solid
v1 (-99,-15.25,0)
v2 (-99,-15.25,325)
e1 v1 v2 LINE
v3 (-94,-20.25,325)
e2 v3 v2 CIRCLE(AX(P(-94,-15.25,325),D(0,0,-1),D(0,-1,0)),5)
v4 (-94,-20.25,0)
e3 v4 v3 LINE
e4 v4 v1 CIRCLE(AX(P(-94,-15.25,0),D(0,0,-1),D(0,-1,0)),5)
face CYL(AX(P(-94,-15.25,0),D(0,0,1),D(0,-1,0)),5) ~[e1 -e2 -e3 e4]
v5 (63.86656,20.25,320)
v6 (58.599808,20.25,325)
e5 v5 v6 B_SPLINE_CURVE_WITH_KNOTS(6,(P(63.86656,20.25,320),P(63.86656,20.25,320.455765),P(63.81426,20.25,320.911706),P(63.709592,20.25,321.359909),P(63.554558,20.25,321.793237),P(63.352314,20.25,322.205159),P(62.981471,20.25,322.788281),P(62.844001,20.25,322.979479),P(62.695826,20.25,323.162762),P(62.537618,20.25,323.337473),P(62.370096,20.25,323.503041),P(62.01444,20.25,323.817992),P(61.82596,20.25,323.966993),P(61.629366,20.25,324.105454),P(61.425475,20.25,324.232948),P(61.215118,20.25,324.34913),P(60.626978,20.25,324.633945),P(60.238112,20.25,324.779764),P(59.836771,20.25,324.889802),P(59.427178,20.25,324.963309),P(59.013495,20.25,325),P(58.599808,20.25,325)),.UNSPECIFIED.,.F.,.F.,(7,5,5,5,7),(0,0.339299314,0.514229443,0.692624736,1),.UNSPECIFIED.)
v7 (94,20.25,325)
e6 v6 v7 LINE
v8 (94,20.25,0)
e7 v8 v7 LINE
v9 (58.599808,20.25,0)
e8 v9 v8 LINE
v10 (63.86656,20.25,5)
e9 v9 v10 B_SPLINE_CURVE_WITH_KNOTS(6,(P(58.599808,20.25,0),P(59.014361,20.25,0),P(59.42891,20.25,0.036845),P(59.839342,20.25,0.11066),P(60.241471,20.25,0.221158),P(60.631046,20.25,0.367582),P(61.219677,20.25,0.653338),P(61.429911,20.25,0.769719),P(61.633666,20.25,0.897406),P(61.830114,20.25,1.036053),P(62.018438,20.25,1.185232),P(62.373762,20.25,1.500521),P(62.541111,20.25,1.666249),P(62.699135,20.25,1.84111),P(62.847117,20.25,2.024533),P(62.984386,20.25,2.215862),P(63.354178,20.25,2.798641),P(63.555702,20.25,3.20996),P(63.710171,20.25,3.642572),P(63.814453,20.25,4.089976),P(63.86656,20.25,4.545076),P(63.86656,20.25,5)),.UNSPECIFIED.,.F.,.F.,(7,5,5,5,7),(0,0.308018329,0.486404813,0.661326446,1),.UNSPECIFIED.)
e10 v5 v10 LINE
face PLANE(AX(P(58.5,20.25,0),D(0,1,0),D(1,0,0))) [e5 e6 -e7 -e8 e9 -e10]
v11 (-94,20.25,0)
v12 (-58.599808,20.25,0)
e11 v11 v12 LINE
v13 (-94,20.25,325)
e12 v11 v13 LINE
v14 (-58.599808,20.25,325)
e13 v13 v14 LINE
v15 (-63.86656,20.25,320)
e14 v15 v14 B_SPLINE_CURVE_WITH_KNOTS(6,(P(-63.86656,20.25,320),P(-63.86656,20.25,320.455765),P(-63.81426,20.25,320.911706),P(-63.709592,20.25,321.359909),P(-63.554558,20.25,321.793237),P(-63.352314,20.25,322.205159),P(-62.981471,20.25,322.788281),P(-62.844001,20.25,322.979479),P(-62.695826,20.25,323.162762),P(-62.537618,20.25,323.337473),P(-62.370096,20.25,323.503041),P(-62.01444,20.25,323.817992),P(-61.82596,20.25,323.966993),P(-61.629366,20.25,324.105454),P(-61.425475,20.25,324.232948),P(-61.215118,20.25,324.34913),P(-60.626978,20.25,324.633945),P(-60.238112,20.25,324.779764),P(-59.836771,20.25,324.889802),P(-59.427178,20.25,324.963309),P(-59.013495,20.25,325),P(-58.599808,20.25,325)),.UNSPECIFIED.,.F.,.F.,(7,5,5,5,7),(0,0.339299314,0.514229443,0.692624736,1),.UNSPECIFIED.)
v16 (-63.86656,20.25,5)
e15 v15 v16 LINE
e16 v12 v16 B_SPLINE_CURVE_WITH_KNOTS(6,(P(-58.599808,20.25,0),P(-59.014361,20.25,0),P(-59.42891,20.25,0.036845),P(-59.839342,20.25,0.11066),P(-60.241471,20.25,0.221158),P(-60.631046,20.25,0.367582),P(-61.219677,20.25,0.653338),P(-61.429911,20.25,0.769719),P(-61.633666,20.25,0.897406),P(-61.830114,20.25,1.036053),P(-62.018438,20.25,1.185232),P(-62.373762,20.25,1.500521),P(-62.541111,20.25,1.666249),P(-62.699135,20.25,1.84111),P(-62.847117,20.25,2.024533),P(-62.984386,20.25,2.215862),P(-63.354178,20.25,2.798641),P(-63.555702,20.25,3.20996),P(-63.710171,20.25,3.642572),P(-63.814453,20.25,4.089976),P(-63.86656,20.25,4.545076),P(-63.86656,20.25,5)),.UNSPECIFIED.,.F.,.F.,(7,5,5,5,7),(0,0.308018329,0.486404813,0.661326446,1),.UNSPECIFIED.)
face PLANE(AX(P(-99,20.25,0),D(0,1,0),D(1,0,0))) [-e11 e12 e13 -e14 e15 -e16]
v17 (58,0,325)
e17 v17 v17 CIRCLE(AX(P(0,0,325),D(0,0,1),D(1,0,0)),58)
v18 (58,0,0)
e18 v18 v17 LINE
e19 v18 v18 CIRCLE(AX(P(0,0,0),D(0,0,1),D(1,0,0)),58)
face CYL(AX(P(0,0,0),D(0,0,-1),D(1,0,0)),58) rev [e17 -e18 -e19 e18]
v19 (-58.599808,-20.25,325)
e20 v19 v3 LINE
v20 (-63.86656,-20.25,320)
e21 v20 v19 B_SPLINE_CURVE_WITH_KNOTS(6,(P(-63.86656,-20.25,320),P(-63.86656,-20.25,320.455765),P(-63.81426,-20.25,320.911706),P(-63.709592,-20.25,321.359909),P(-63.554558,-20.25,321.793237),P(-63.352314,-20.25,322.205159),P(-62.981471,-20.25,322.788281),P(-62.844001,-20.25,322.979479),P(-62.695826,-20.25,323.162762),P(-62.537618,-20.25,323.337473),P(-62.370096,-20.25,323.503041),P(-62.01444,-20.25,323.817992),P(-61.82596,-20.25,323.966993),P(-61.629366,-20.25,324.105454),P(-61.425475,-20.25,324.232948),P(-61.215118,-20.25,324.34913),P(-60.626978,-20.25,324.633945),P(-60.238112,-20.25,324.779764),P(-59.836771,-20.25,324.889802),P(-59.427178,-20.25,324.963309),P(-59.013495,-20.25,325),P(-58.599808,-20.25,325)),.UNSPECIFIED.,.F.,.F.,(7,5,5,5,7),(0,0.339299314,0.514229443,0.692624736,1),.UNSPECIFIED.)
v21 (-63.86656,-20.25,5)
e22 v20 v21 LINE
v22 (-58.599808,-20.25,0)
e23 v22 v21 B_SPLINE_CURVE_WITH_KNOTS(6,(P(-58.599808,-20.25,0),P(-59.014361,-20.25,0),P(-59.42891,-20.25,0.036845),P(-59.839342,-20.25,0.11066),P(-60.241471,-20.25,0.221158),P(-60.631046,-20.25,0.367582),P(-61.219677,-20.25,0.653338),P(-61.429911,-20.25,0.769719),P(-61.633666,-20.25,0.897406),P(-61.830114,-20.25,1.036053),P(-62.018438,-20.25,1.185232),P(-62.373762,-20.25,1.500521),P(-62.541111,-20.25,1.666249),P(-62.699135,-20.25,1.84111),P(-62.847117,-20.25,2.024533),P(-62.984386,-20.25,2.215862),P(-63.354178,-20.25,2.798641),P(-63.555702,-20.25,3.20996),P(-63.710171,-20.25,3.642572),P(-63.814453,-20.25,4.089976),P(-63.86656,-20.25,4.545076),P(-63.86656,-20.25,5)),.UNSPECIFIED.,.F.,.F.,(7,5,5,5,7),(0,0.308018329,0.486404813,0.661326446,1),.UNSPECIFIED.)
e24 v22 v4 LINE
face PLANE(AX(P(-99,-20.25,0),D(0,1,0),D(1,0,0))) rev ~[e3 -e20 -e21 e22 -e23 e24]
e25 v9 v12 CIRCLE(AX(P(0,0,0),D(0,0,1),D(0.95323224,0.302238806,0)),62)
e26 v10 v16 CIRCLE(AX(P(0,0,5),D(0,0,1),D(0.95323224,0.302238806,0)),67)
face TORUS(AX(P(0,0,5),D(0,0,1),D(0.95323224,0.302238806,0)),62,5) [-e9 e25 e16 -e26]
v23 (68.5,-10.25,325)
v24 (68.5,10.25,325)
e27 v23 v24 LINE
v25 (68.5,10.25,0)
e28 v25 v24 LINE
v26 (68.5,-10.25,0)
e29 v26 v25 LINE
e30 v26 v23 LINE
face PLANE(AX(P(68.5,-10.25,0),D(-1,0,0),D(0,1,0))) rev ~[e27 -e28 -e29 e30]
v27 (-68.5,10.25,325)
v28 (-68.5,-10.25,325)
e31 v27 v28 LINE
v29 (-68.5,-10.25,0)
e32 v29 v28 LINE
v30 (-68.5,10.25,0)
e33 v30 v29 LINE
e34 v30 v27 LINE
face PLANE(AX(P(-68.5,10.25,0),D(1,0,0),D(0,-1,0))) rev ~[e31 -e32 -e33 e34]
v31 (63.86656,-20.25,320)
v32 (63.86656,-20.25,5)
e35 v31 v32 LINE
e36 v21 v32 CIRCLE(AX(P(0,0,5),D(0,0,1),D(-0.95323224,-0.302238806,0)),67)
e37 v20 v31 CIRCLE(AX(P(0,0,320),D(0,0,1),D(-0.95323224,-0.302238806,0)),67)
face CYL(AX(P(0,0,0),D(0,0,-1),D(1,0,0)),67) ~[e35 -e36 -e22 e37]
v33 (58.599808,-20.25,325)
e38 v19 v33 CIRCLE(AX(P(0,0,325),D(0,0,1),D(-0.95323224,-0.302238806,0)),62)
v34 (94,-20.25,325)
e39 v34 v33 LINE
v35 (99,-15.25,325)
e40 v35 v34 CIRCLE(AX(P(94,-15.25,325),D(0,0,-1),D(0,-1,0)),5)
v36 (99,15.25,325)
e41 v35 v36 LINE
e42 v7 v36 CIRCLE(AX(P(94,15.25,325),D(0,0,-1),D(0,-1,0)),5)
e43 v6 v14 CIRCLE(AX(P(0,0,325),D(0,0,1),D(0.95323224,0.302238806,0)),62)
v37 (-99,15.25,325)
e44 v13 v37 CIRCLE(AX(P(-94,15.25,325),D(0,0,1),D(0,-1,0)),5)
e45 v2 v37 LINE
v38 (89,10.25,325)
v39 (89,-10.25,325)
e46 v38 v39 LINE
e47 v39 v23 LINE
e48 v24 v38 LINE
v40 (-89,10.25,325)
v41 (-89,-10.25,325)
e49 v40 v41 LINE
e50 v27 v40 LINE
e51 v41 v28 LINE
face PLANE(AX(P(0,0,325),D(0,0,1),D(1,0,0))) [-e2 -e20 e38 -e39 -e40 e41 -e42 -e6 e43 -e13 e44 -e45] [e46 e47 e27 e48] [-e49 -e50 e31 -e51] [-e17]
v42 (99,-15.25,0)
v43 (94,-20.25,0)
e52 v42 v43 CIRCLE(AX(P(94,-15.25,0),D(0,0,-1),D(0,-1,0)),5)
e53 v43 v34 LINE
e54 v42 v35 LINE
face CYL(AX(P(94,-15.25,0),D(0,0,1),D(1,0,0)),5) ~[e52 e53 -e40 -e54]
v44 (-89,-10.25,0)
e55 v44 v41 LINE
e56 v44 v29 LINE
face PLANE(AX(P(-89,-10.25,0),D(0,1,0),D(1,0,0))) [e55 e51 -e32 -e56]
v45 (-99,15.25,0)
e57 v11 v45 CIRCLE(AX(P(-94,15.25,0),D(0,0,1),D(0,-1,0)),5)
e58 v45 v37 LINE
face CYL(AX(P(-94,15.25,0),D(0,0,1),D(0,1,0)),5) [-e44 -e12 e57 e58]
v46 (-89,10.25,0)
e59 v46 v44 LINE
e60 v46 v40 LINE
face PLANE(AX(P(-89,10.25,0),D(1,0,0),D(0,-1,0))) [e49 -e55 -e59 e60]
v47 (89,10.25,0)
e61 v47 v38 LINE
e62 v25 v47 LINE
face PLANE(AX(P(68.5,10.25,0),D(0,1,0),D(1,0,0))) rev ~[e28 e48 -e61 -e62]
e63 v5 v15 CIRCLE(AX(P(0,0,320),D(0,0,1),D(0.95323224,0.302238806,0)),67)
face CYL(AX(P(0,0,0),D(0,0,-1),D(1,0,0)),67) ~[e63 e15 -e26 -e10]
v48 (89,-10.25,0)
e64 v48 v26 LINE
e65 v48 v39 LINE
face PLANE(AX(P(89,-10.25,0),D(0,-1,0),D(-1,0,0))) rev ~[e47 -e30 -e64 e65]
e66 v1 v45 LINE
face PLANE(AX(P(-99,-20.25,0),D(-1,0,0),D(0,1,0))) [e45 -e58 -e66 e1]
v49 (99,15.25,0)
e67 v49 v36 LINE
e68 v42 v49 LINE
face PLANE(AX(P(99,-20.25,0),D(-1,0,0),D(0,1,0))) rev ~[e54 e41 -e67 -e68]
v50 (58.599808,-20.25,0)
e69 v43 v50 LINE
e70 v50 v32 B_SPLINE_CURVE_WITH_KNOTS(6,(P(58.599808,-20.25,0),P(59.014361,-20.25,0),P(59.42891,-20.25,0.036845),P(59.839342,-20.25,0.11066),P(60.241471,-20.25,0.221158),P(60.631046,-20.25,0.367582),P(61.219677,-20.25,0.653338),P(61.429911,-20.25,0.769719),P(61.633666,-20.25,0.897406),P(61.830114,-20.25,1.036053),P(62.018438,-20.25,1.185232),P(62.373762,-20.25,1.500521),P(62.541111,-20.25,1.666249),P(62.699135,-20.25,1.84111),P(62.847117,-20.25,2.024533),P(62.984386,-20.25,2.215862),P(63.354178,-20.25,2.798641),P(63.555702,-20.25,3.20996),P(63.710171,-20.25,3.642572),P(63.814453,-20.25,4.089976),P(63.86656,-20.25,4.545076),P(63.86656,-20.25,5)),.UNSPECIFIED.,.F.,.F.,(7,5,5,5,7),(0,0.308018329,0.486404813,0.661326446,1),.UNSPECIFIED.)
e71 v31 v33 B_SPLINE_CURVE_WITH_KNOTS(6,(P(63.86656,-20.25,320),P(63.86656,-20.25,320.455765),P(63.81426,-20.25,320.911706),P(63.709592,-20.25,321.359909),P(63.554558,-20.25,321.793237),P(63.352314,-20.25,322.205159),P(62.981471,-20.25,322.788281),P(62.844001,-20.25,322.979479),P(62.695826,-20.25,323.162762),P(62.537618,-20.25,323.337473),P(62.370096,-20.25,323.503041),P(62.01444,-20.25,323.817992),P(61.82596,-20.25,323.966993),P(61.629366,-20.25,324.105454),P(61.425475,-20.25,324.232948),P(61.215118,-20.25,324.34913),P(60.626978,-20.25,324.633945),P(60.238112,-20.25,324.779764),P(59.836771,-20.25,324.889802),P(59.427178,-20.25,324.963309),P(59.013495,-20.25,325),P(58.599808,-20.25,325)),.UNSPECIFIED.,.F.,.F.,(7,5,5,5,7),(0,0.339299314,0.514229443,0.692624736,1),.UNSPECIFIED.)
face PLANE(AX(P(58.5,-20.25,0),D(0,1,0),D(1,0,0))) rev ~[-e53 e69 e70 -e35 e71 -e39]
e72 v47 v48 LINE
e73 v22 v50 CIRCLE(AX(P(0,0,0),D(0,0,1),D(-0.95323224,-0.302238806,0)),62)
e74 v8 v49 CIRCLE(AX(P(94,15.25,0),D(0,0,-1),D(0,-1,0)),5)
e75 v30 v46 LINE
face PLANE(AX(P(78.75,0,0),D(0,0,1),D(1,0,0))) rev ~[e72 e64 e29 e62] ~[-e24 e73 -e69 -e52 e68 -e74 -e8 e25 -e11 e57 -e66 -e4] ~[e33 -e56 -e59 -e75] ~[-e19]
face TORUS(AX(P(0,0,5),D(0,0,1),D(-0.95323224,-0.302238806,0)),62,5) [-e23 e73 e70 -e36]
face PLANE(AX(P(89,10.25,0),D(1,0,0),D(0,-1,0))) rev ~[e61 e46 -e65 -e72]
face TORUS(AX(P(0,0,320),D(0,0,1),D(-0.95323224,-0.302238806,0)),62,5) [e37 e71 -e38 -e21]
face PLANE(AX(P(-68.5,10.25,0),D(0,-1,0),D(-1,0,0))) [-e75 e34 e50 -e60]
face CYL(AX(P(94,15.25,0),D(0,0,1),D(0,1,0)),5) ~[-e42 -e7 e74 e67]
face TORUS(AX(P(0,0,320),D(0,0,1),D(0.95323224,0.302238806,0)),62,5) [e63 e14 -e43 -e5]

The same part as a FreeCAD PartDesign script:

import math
import FreeCAD as App
import Part
import Sketcher

V = App.Vector
Q = App.Units.Quantity


def edges_at(feature, points):
    """Names of the edges that pass closest to the given points."""
    edges = feature.Shape.Edges
    near = lambda p: min(range(len(edges)), key=lambda i: edges[i].distToShape(Part.Vertex(*p))[0])
    return sorted({f"Edge{near(p) + 1}" for p in points})

doc = App.newDocument("Part")
params = doc.addObject("Spreadsheet::Sheet", "Params")
for row, (alias, value) in enumerate([
    ("sketch1_diameter", "116 mm"),
    ("sketch1_radius", "67 mm"),
    ("sketch1_width", "20.5 mm"),
    ("sketch1_height", "40.5 mm"),
    ("pad1_length", "325 mm"),
    ("fillet_radius", "5 mm"),
], start=1):
    params.set(f"A{row}", alias)
    params.set(f"B{row}", "=" + value)
    params.setAlias(f"B{row}", alias)

body = doc.addObject("PartDesign::Body", "Body")

# Sketch on XY plane
sketch1 = body.newObject("Sketcher::SketchObject", "Sketch")
sketch1.AttachmentSupport = (doc.getObject("XY_Plane"), [""])
sketch1.MapMode = "FlatFace"
sketch1.addGeometry([
    Part.LineSegment(V(99, 20.25, 0), V(63.86656, 20.25, 0)),  # 0
    Part.ArcOfCircle(Part.Circle(V(0, 0, 0), V(0, 0, 1), 67), math.radians(17.592121), math.radians(162.407879)),  # 1
    Part.LineSegment(V(-63.86656, 20.25, 0), V(-99, 20.25, 0)),  # 2
    Part.LineSegment(V(-99, 20.25, 0), V(-99, -20.25, 0)),  # 3
    Part.LineSegment(V(-99, -20.25, 0), V(-63.86656, -20.25, 0)),  # 4
    Part.ArcOfCircle(Part.Circle(V(0, 0, 0), V(0, 0, 1), 67), math.radians(-162.407879), math.radians(-17.592121)),  # 5
    Part.LineSegment(V(63.86656, -20.25, 0), V(99, -20.25, 0)),  # 6
    Part.LineSegment(V(99, -20.25, 0), V(99, 20.25, 0)),  # 7
    Part.LineSegment(V(89, 10.25, 0), V(89, -10.25, 0)),  # 8
    Part.LineSegment(V(89, -10.25, 0), V(68.5, -10.25, 0)),  # 9
    Part.LineSegment(V(68.5, -10.25, 0), V(68.5, 10.25, 0)),  # 10
    Part.LineSegment(V(68.5, 10.25, 0), V(89, 10.25, 0)),  # 11
    Part.Circle(V(0, 0, 0), V(0, 0, 1), 58),  # 12
    Part.LineSegment(V(-89, -10.25, 0), V(-89, 10.25, 0)),  # 13
    Part.LineSegment(V(-89, 10.25, 0), V(-68.5, 10.25, 0)),  # 14
    Part.LineSegment(V(-68.5, 10.25, 0), V(-68.5, -10.25, 0)),  # 15
    Part.LineSegment(V(-68.5, -10.25, 0), V(-89, -10.25, 0)),  # 16
], False)
sketch1.addConstraint([
    Sketcher.Constraint("Coincident", 0, 2, 1, 1),
    Sketcher.Constraint("Coincident", 1, 2, 2, 1),
    Sketcher.Constraint("Coincident", 2, 2, 3, 1),
    Sketcher.Constraint("Coincident", 3, 2, 4, 1),
    Sketcher.Constraint("Coincident", 4, 2, 5, 1),
    Sketcher.Constraint("Coincident", 5, 2, 6, 1),
    Sketcher.Constraint("Coincident", 6, 2, 7, 1),
    Sketcher.Constraint("Coincident", 7, 2, 0, 1),
    Sketcher.Constraint("Coincident", 8, 2, 9, 1),
    Sketcher.Constraint("Coincident", 9, 2, 10, 1),
    Sketcher.Constraint("Coincident", 10, 2, 11, 1),
    Sketcher.Constraint("Coincident", 11, 2, 8, 1),
    Sketcher.Constraint("Coincident", 13, 2, 14, 1),
    Sketcher.Constraint("Coincident", 14, 2, 15, 1),
    Sketcher.Constraint("Coincident", 15, 2, 16, 1),
    Sketcher.Constraint("Coincident", 16, 2, 13, 1),
    Sketcher.Constraint("Horizontal", 0),
    Sketcher.Constraint("Horizontal", 2),
    Sketcher.Constraint("Vertical", 3),
    Sketcher.Constraint("Horizontal", 4),
    Sketcher.Constraint("Horizontal", 6),
    Sketcher.Constraint("Vertical", 7),
    Sketcher.Constraint("Vertical", 8),
    Sketcher.Constraint("Horizontal", 9),
    Sketcher.Constraint("Vertical", 10),
    Sketcher.Constraint("Horizontal", 11),
    Sketcher.Constraint("Vertical", 13),
    Sketcher.Constraint("Horizontal", 14),
    Sketcher.Constraint("Vertical", 15),
    Sketcher.Constraint("Horizontal", 16),
    Sketcher.Constraint("Coincident", 1, 3, -1, 1),
    Sketcher.Constraint("Coincident", 5, 3, -1, 1),
    Sketcher.Constraint("Coincident", 12, 3, -1, 1),
    Sketcher.Constraint("Equal", 1, 5),
    Sketcher.Constraint("Symmetric", 2, 2, 6, 2, -1, 1),
    Sketcher.Constraint("Symmetric", 8, 2, 13, 2, -1, 1),
    Sketcher.Constraint("Symmetric", 10, 2, 15, 2, -1, 1),
    Sketcher.Constraint("Horizontal", 0, 2, 1, 2),
    Sketcher.Constraint("Horizontal", 4, 2, 5, 2),
    Sketcher.Constraint("Horizontal", 11, 2, 13, 2),
    Sketcher.Constraint("Equal", 16, 8),
    Sketcher.Constraint("Diameter", 12, Q("116 mm")),
    Sketcher.Constraint("Radius", 1, Q("67 mm")),
    Sketcher.Constraint("DistanceX", 9, 2, 9, 1, Q("20.5 mm")),
    Sketcher.Constraint("DistanceY", 3, 2, 3, 1, Q("40.5 mm")),
    Sketcher.Constraint("DistanceX", 2, 2, -1, 1, Q("99 mm")),
    Sketcher.Constraint("DistanceX", -1, 1, 8, 2, Q("89 mm")),
])
sketch1.setExpression("Constraints[41]", "Params.sketch1_diameter")
sketch1.setExpression("Constraints[42]", "Params.sketch1_radius")
sketch1.setExpression("Constraints[43]", "Params.sketch1_width")
sketch1.setExpression("Constraints[44]", "Params.sketch1_height")
pad1 = body.newObject("PartDesign::Pad", "Pad")
pad1.Profile = sketch1
pad1.setExpression("Length", "Params.pad1_length")
doc.recompute()

fillet = body.newObject("PartDesign::Fillet", "Fillet")
fillet.Base = (pad1, edges_at(pad1, [
    (0, -67, 0),
    (0, -67, 325),
    (0, 67, 0),
    (99, 20.25, 162.5),
    (99, -20.25, 162.5),
    (-99, -20.25, 162.5),
    (-99, 20.25, 162.5),
    (0, 67, 325),
]))
fillet.setExpression("Radius", "Params.fillet_radius")

doc.recompute()
